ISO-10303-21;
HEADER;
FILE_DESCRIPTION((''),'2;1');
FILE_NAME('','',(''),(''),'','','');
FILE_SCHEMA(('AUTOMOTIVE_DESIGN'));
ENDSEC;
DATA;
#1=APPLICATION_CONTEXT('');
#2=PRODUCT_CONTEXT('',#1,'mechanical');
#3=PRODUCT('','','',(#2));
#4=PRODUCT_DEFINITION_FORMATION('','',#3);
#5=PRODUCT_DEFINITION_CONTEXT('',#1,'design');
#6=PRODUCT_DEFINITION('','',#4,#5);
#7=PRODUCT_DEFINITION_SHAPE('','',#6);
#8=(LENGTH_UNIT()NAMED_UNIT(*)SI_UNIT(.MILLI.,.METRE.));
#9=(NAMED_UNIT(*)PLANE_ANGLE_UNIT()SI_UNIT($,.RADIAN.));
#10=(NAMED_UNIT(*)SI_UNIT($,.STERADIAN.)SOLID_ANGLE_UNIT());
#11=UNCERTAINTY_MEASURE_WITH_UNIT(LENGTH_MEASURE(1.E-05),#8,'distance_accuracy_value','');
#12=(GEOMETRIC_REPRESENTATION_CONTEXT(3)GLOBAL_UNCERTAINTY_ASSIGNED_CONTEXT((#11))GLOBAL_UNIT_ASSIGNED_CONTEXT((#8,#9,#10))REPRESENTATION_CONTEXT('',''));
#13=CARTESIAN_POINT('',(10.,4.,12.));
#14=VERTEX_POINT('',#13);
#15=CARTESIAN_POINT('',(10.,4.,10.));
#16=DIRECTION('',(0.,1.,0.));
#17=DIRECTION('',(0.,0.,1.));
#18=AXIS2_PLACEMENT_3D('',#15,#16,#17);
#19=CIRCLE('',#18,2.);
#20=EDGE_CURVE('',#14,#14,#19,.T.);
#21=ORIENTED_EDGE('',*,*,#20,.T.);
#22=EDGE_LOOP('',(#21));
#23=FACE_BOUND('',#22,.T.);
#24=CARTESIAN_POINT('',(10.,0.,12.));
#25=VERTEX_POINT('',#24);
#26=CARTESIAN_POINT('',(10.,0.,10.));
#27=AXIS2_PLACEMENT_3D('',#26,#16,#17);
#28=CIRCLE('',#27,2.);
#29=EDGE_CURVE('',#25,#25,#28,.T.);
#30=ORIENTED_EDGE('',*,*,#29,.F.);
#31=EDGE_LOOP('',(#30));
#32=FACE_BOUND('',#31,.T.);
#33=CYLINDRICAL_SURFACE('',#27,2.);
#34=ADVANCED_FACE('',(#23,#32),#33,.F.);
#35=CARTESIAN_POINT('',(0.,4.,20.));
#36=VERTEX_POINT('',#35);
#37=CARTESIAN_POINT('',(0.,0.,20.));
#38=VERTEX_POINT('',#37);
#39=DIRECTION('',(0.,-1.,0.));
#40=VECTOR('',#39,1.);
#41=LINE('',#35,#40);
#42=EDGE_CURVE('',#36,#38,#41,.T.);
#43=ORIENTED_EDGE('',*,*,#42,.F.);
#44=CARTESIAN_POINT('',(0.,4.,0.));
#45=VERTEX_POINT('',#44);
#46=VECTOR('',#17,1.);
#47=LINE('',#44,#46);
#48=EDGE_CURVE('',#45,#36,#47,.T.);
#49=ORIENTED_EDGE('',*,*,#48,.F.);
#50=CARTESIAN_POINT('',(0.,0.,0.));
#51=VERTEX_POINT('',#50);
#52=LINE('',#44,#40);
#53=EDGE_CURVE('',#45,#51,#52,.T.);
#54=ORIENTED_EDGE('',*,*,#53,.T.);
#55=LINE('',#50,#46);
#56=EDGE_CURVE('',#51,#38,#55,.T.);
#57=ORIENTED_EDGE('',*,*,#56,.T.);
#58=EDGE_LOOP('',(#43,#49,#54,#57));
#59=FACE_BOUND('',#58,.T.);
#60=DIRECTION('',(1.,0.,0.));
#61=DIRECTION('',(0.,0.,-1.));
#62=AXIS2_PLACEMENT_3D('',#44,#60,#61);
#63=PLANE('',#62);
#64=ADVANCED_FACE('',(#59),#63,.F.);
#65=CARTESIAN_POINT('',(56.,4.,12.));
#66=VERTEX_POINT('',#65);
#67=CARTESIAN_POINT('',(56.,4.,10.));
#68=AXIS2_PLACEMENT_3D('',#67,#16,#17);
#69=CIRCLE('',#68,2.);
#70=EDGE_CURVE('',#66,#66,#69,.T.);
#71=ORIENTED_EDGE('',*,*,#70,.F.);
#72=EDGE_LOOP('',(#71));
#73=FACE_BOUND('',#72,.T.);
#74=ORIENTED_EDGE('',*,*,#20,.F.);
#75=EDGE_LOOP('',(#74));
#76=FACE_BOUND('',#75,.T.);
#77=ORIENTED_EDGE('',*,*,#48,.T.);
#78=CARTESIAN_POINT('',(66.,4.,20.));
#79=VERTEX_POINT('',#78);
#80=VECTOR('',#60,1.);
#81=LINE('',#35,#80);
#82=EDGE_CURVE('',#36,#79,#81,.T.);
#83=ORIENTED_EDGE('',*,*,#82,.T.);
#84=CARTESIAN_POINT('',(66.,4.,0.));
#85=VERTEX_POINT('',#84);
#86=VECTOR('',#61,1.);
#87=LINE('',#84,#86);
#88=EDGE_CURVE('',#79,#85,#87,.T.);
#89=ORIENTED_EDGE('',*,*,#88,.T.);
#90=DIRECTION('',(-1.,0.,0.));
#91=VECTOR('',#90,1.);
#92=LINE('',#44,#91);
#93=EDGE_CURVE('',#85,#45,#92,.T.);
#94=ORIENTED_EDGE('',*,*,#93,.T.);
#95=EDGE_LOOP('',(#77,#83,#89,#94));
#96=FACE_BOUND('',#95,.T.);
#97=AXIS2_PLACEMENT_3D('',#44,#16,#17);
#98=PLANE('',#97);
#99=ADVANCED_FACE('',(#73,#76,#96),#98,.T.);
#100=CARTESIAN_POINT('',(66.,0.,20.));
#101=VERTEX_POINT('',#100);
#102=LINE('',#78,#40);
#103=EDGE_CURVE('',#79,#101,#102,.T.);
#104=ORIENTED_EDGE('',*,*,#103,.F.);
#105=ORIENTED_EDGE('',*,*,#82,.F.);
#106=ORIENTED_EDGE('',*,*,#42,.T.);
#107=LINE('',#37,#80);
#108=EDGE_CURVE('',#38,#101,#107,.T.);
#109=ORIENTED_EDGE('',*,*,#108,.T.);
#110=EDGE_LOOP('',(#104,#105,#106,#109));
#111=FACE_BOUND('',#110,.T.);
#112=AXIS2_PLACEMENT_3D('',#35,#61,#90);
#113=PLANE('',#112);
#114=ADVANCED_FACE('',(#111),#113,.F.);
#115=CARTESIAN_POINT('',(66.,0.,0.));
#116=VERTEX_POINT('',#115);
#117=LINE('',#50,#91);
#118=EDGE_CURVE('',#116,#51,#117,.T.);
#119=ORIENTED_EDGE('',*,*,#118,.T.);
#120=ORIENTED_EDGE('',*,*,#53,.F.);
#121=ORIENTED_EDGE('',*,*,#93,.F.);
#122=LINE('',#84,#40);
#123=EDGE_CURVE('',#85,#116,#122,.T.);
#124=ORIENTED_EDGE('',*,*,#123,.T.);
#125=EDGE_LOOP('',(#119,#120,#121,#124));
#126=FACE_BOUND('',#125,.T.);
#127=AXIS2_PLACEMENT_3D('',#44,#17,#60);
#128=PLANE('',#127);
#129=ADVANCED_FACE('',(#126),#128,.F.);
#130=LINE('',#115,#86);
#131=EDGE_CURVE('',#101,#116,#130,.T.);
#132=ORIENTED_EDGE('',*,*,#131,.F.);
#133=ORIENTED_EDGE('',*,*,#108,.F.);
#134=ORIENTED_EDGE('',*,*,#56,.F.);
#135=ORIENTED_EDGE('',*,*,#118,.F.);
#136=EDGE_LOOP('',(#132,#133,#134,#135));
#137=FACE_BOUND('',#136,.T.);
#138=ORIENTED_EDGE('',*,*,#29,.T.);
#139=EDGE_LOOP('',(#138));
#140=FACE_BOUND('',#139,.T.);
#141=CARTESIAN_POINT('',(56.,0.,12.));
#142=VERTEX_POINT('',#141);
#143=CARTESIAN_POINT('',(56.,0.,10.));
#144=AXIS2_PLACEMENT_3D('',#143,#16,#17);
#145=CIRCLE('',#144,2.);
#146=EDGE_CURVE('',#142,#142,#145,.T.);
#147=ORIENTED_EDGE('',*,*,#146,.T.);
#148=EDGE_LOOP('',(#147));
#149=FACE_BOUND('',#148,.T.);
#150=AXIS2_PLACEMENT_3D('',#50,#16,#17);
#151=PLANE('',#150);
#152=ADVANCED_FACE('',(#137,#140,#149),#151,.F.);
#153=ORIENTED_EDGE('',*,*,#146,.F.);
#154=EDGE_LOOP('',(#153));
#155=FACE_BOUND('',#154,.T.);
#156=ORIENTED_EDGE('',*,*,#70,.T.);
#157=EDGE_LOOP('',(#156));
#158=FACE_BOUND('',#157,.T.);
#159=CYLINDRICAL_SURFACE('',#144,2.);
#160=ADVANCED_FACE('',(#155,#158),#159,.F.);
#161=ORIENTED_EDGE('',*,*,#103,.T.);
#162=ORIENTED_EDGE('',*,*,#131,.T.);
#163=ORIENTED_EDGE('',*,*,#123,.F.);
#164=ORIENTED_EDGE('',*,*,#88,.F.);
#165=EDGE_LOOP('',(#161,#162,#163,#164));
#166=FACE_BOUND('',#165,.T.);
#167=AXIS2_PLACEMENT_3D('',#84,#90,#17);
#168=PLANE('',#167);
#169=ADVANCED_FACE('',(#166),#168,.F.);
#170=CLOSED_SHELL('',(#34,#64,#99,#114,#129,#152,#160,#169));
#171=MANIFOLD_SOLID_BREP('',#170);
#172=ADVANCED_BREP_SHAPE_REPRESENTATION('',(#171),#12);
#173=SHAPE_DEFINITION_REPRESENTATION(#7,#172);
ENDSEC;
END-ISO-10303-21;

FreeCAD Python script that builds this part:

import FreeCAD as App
import Part
import Sketcher

V = App.Vector
Q = App.Units.Quantity


def add_polygon(sketch, points):
    """Adds a closed chain of lines whose ends are joined by coincident constraints."""
    first, n = sketch.GeometryCount, len(points)
    for a, b in zip(points, points[1:] + points[:1]):
        sketch.addGeometry(Part.LineSegment(App.Vector(*a, 0), App.Vector(*b, 0)), False)
    for i in range(n):
        sketch.addConstraint(Sketcher.Constraint("Coincident", first + i, 2, first + (i + 1) % n, 1))

doc = App.newDocument("Part")
body = doc.addObject("PartDesign::Body", "Body")

# Sketch on XZ plane
sketch1 = body.newObject("Sketcher::SketchObject", "Sketch")
sketch1.AttachmentSupport = (doc.getObject("XZ_Plane"), [""])
sketch1.MapMode = "FlatFace"
add_polygon(sketch1, [(0, 0), (0, 20), (66, 20), (66, 0)])  # lines 0-3
sketch1.addConstraint(Sketcher.Constraint("Vertical", 0))
sketch1.addConstraint(Sketcher.Constraint("Horizontal", 1))
sketch1.addConstraint(Sketcher.Constraint("Vertical", 2))
sketch1.addConstraint(Sketcher.Constraint("Horizontal", 3))
sketch1.addConstraint(Sketcher.Constraint("Coincident", 3, 2, -1, 1))
sketch1.addConstraint(Sketcher.Constraint("DistanceX", 1, 1, 1, 2, Q("66 mm")))
sketch1.addConstraint(Sketcher.Constraint("DistanceY", 0, 1, 0, 2, Q("20 mm")))
pad1 = body.newObject("PartDesign::Pad", "Pad")
pad1.Profile = sketch1
pad1.Length = 4
pad1.Reversed = True

# Sketch on XZ plane
sketch2 = body.newObject("Sketcher::SketchObject", "Sketch001")
sketch2.AttachmentSupport = (doc.getObject("XZ_Plane"), [""])
sketch2.MapMode = "FlatFace"
sketch2.AttachmentOffset = App.Placement(V(0, 0, -4), App.Rotation())
sketch2.addGeometry(Part.Circle(V(10, 10, 0), V(0, 0, 1), 2), False)
sketch2.addGeometry(Part.Circle(V(56, 10, 0), V(0, 0, 1), 2), False)
sketch2.addConstraint(Sketcher.Constraint("Equal", 0, 1))
sketch2.addConstraint(Sketcher.Constraint("Horizontal", 0, 3, 1, 3))
sketch2.addConstraint(Sketcher.Constraint("Diameter", 0, Q("4 mm")))
sketch2.addConstraint(Sketcher.Constraint("DistanceX", -1, 1, 0, 3, Q("10 mm")))
sketch2.addConstraint(Sketcher.Constraint("DistanceY", -1, 1, 0, 3, Q("10 mm")))
sketch2.addConstraint(Sketcher.Constraint("DistanceX", -1, 1, 1, 3, Q("56 mm")))
pocket1 = body.newObject("PartDesign::Pocket", "Pocket")
pocket1.Profile = sketch2
pocket1.Type = "ThroughAll"
pocket1.Reversed = True

doc.recompute()
